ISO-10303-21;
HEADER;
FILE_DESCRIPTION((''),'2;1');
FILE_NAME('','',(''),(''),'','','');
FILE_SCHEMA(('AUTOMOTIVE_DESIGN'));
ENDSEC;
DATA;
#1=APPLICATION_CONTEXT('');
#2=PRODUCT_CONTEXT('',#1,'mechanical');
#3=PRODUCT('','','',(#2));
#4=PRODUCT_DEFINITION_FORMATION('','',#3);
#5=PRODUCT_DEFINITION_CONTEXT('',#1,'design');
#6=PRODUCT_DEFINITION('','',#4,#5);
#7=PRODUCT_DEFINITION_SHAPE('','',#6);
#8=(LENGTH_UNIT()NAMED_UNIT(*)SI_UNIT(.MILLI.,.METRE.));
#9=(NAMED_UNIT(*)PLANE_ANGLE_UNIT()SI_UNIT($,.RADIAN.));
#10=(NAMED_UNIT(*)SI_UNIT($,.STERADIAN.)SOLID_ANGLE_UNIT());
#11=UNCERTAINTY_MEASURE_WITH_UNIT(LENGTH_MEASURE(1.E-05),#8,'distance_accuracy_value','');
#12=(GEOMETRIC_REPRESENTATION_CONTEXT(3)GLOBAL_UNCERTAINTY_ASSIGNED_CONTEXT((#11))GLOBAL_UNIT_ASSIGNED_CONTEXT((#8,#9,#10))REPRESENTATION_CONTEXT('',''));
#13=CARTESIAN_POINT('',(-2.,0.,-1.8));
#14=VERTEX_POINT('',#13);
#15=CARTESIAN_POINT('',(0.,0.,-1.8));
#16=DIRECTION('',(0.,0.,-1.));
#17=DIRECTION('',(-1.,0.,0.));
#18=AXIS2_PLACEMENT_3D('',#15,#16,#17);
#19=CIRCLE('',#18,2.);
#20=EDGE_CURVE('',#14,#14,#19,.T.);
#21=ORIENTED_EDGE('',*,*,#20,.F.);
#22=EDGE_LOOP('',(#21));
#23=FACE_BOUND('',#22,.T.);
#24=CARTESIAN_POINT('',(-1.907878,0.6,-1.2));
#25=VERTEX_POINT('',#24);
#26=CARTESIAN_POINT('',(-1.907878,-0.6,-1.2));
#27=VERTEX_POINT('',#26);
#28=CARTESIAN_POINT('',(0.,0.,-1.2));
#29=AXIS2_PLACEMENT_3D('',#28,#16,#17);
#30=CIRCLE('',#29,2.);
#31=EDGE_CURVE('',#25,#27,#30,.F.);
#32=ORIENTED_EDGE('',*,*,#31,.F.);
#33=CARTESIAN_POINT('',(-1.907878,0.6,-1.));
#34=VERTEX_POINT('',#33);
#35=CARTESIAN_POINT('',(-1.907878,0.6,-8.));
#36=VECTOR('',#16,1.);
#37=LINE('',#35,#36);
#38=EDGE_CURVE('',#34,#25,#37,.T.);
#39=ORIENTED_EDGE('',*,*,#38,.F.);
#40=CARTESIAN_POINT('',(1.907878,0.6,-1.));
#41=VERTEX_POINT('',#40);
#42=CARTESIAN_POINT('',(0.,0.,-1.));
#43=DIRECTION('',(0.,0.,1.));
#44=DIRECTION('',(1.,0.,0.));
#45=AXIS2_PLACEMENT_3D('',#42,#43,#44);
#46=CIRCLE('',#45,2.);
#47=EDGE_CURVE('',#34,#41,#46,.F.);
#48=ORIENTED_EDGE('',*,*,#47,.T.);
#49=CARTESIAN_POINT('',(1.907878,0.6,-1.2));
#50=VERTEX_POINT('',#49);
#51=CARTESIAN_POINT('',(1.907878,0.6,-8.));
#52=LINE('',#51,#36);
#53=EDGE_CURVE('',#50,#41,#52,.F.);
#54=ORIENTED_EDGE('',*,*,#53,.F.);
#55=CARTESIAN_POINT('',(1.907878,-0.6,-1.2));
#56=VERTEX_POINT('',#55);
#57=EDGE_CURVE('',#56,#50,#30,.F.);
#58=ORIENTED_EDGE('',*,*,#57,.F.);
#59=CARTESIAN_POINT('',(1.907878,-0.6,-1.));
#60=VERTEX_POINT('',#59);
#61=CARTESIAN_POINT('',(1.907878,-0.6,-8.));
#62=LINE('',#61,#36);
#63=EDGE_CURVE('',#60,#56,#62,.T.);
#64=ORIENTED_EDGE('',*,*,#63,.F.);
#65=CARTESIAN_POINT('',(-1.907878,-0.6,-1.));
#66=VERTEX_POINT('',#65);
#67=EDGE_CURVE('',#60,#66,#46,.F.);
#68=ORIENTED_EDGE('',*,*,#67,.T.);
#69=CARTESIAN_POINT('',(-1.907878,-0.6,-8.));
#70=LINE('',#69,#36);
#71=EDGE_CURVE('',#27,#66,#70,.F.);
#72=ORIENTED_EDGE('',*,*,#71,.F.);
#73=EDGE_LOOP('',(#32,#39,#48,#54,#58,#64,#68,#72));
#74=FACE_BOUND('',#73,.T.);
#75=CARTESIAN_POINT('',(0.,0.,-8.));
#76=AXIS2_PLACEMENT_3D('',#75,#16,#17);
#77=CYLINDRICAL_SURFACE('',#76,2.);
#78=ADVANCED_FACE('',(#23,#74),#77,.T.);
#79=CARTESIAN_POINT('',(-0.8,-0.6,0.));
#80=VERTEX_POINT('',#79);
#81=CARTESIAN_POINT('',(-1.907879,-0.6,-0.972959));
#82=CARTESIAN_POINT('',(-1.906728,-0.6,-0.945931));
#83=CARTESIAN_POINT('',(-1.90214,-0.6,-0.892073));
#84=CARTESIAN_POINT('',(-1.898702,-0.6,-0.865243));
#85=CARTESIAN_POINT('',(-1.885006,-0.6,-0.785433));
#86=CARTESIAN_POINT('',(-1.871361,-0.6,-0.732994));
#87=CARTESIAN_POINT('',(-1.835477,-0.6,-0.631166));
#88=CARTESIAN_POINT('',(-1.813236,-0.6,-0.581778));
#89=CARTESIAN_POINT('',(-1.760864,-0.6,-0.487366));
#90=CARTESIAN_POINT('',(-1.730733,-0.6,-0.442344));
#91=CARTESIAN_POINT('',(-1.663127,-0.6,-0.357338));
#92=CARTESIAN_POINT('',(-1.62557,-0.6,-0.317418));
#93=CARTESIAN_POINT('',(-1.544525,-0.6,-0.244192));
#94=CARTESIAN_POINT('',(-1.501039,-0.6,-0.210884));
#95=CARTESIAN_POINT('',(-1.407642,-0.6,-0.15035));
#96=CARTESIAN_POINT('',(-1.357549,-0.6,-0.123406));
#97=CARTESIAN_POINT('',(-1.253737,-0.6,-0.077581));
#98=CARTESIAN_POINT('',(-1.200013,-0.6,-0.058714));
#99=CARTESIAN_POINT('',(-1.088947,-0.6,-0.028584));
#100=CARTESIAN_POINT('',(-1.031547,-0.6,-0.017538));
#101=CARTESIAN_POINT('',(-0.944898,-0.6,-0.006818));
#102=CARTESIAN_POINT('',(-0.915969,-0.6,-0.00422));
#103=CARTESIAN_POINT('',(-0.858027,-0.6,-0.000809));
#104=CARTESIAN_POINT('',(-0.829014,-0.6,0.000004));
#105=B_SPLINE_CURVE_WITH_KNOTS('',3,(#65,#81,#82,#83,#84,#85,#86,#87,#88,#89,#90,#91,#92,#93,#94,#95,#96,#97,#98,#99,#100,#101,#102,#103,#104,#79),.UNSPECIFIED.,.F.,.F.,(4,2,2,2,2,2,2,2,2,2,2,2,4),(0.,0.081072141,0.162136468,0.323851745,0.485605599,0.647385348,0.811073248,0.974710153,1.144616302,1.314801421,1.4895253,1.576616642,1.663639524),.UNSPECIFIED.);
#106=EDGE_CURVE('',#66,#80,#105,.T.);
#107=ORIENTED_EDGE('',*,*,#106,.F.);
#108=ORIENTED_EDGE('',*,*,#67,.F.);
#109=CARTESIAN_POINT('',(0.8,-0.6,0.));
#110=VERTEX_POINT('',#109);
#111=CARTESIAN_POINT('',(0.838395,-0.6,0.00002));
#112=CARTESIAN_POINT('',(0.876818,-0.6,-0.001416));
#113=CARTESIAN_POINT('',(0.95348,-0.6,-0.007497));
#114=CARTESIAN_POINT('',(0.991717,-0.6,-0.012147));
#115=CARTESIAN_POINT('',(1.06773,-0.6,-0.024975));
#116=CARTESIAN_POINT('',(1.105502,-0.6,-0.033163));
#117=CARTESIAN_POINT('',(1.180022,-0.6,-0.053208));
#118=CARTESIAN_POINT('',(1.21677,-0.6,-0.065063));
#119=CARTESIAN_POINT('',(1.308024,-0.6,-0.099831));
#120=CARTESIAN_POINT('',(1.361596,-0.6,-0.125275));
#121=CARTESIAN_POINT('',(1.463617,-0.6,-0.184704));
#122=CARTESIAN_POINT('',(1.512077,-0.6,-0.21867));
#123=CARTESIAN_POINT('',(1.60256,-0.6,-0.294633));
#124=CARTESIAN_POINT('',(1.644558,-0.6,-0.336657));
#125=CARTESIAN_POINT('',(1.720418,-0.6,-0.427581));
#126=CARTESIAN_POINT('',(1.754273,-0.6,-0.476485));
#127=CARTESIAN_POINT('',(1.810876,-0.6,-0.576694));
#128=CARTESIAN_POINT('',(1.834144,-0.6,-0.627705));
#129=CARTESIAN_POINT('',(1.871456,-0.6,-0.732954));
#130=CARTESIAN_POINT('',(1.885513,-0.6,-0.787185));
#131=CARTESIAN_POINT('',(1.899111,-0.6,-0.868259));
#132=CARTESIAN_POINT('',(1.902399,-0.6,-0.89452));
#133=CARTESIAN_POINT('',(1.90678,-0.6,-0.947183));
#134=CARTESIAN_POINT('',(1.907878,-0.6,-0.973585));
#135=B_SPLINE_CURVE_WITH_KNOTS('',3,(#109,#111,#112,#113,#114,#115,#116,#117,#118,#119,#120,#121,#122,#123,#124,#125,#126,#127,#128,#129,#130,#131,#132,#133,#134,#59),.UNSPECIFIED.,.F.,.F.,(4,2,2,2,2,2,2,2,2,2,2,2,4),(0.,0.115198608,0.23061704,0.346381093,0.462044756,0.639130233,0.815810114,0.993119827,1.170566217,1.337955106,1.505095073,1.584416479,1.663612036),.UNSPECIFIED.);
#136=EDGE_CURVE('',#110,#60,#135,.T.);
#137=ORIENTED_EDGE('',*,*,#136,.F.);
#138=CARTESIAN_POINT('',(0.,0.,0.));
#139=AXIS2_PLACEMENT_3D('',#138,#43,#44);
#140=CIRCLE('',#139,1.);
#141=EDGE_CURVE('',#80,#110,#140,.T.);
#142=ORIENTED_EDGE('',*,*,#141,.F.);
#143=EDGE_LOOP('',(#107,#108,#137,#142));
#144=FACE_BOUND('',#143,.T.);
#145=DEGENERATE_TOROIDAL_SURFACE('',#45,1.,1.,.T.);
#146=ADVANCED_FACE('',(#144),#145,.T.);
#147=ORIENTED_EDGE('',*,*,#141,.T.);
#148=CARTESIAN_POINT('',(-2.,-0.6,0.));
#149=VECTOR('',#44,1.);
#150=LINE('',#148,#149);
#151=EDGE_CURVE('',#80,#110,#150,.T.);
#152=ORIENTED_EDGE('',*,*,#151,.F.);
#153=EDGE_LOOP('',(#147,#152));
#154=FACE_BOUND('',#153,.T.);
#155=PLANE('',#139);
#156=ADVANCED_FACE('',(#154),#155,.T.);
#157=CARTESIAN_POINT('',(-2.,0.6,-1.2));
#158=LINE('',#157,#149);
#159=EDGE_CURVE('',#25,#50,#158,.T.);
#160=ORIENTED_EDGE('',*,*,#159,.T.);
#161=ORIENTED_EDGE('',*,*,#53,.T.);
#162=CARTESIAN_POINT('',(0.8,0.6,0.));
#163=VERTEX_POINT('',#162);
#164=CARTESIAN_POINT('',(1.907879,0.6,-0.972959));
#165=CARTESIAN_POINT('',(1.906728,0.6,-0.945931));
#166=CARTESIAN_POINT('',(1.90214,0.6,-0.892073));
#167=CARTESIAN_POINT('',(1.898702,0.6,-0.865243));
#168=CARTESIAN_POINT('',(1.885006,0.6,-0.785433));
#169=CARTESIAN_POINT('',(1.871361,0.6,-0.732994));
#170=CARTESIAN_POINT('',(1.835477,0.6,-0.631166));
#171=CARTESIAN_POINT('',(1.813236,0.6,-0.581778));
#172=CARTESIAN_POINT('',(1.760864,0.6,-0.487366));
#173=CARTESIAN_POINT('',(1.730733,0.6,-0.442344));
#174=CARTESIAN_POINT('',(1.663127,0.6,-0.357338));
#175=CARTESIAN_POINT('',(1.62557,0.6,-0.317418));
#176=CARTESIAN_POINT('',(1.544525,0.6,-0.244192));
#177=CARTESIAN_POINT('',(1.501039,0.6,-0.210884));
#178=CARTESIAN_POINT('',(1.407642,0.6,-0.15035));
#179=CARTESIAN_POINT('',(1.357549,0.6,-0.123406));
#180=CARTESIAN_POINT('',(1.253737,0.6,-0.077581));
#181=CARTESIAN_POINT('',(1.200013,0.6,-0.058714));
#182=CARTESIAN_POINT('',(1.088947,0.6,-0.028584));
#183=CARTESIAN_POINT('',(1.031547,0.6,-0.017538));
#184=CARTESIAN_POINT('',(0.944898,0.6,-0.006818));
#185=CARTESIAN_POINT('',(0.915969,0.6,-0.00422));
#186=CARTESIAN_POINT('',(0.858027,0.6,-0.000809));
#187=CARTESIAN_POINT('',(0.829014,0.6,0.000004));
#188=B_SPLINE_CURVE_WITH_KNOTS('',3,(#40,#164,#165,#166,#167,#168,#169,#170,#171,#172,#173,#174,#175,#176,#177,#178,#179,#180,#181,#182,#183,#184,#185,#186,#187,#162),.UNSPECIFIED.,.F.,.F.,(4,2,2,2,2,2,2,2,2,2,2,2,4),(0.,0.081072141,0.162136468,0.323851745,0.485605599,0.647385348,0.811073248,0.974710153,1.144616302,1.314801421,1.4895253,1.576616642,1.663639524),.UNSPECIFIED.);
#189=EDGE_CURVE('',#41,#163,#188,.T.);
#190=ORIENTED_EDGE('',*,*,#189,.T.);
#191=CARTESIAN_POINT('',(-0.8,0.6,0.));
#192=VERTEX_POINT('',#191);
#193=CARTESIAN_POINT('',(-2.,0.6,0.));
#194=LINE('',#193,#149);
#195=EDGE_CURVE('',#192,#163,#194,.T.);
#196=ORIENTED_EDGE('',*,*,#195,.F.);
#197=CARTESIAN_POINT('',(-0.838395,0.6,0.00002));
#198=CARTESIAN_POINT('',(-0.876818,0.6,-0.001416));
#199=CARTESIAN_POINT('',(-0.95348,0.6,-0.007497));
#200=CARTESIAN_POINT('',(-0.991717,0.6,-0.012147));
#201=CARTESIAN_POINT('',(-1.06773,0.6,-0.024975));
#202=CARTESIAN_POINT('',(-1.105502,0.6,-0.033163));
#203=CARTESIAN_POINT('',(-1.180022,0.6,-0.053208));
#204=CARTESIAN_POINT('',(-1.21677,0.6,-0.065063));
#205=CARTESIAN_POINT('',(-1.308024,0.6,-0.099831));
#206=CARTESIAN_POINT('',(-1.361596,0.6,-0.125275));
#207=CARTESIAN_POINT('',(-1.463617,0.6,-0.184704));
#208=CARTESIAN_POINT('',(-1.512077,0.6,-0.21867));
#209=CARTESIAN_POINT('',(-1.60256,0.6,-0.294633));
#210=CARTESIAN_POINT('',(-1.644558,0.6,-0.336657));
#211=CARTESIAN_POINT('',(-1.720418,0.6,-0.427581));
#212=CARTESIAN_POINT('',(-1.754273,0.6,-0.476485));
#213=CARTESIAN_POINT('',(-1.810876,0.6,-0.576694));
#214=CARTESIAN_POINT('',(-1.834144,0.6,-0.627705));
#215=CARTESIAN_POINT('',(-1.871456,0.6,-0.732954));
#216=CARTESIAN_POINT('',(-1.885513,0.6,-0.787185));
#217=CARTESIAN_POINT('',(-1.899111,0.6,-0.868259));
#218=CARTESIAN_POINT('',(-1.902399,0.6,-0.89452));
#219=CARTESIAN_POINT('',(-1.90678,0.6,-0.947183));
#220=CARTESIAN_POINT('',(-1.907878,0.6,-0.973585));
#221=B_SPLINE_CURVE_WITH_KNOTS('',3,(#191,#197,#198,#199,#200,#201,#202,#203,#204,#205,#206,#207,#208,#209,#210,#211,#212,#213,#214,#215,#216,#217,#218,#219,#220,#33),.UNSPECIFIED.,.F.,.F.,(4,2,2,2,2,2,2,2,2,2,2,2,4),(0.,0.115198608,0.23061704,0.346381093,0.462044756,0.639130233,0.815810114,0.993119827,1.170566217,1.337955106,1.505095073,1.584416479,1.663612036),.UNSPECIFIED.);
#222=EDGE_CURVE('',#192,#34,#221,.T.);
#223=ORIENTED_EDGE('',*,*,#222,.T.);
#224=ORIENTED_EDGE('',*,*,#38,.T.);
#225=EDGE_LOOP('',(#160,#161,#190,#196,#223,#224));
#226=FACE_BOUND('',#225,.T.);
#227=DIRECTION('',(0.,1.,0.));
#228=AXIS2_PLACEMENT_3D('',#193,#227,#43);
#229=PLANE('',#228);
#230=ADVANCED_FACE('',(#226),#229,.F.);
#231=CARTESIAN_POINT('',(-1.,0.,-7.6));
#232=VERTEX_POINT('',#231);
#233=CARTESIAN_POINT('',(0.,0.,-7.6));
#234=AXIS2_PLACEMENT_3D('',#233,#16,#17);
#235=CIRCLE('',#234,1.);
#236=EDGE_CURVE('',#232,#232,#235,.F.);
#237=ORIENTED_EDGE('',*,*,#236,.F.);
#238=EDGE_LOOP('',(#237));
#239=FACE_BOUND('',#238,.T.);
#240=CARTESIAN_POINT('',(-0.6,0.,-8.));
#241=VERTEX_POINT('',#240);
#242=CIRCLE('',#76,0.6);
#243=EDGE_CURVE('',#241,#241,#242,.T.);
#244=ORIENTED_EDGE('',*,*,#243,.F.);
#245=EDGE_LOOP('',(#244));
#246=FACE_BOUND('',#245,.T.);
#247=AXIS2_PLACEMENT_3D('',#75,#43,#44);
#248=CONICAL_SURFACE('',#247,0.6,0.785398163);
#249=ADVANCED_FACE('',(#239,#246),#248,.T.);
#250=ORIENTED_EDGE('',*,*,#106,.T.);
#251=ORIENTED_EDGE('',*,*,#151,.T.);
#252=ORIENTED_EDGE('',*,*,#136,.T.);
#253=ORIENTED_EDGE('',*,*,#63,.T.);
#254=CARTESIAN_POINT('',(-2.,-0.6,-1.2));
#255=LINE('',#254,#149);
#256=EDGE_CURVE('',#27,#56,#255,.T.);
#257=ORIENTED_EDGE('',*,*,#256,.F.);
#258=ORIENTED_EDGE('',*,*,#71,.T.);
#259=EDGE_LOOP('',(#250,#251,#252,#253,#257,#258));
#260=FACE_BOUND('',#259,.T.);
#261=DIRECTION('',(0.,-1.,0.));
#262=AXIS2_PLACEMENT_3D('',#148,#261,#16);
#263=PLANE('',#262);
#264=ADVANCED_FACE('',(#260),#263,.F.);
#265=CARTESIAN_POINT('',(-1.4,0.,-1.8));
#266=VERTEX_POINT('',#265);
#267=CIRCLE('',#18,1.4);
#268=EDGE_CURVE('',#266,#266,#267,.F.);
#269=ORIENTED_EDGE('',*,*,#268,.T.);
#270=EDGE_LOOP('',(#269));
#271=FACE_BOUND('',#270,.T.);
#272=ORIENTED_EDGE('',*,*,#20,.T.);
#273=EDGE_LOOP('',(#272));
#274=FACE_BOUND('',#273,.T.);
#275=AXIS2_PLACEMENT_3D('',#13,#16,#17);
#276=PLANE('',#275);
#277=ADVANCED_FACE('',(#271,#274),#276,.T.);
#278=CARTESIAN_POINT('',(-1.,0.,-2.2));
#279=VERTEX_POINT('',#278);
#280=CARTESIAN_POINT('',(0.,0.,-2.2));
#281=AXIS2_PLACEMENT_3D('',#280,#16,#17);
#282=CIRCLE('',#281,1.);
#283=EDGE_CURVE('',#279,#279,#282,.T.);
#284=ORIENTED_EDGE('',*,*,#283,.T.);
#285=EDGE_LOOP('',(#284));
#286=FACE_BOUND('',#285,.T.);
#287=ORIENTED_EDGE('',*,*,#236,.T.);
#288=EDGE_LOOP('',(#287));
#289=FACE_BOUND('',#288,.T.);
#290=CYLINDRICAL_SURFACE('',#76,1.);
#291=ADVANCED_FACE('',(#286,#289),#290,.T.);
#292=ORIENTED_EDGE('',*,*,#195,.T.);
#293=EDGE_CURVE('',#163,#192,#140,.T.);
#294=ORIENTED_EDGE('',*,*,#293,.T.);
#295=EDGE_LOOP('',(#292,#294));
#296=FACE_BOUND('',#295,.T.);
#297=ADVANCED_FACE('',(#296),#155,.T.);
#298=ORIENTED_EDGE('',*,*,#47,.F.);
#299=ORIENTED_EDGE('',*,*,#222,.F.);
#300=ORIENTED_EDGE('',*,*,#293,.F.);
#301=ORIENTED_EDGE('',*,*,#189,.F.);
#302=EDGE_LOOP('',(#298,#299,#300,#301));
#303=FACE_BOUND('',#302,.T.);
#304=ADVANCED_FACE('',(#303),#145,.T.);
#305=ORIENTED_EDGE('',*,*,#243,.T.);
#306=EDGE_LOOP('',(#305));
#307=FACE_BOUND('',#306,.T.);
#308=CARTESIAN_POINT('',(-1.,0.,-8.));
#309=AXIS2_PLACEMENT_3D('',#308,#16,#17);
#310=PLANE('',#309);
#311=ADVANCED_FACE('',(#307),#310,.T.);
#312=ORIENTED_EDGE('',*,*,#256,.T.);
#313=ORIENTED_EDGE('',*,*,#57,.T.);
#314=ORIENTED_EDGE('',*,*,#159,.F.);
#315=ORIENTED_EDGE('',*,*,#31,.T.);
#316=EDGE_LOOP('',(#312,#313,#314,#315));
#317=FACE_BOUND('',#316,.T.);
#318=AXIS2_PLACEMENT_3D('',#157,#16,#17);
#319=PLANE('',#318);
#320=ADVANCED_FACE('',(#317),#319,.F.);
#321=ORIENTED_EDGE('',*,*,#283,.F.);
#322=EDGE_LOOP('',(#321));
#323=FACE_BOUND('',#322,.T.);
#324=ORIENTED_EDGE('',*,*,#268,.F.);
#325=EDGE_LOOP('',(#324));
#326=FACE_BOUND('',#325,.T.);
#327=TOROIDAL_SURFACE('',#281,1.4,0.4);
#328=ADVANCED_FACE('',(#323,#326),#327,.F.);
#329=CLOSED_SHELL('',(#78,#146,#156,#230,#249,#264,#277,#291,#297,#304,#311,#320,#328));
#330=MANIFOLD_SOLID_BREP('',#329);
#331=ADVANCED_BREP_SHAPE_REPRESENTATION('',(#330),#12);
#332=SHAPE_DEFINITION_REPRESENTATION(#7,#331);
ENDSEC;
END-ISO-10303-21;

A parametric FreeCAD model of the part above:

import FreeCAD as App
import Part
import Sketcher
from FreeCAD import Vector
Q = App.Units.Quantity


def edges_at(feature, points):
    """Names of the edges that pass closest to the given points."""
    edges = feature.Shape.Edges
    near = lambda p: min(range(len(edges)), key=lambda i: edges[i].distToShape(Part.Vertex(*p))[0])
    return sorted({f"Edge{near(p) + 1}" for p in points})

doc = App.newDocument("Part")
body = doc.addObject("PartDesign::Body", "Body")

# Sketch on XZ plane
sketch1 = body.newObject("Sketcher::SketchObject", "Sketch")
sketch1.AttachmentSupport = (doc.getObject("XZ_Plane"), [""])
sketch1.MapMode = "FlatFace"
sketch1.addGeometry(Part.LineSegment(Vector(-2, 0, 0), Vector(0, 0, 0)), False)
sketch1.addGeometry(Part.LineSegment(Vector(0, 0, 0), Vector(0, -8, 0)), False)
sketch1.addGeometry(Part.LineSegment(Vector(0, -8, 0), Vector(-1, -8, 0)), False)
sketch1.addGeometry(Part.LineSegment(Vector(-1, -8, 0), Vector(-1, -1.8, 0)), False)
sketch1.addGeometry(Part.LineSegment(Vector(-1, -1.8, 0), Vector(-2, -1.8, 0)), False)
sketch1.addGeometry(Part.LineSegment(Vector(-2, -1.8, 0), Vector(-2, 0, 0)), False)
sketch1.addConstraint(Sketcher.Constraint("Coincident", 0, 2, 1, 1))
sketch1.addConstraint(Sketcher.Constraint("Coincident", 1, 2, 2, 1))
sketch1.addConstraint(Sketcher.Constraint("Coincident", 2, 2, 3, 1))
sketch1.addConstraint(Sketcher.Constraint("Coincident", 3, 2, 4, 1))
sketch1.addConstraint(Sketcher.Constraint("Coincident", 4, 2, 5, 1))
sketch1.addConstraint(Sketcher.Constraint("Coincident", 5, 2, 0, 1))
sketch1.addConstraint(Sketcher.Constraint("Horizontal", 0))
sketch1.addConstraint(Sketcher.Constraint("Vertical", 1))
sketch1.addConstraint(Sketcher.Constraint("Horizontal", 2))
sketch1.addConstraint(Sketcher.Constraint("Vertical", 3))
sketch1.addConstraint(Sketcher.Constraint("Horizontal", 4))
sketch1.addConstraint(Sketcher.Constraint("Vertical", 5))
sketch1.addConstraint(Sketcher.Constraint("Coincident", 0, 2, -1, 1))
sketch1.addConstraint(Sketcher.Constraint("Equal", 2, 4))
sketch1.addConstraint(Sketcher.Constraint("DistanceX", 0, 1, 0, 2, Q("2 mm")))
sketch1.addConstraint(Sketcher.Constraint("DistanceY", 1, 2, 1, 1, Q("8 mm")))
sketch1.addConstraint(Sketcher.Constraint("DistanceY", 3, 1, 3, 2, Q("6.2 mm")))
revolution = body.newObject("PartDesign::Revolution", "Revolution")
revolution.Profile = sketch1
revolution.ReferenceAxis = (sketch1, ["V_Axis"])
revolution.Angle = 360

# Sketch on YZ plane
sketch2 = body.newObject("Sketcher::SketchObject", "Sketch001")
sketch2.AttachmentSupport = (doc.getObject("YZ_Plane"), [""])
sketch2.MapMode = "FlatFace"
sketch2.addGeometry(Part.LineSegment(Vector(0.6, 0, 0), Vector(-0.6, 0, 0)), False)
sketch2.addGeometry(Part.LineSegment(Vector(-0.6, 0, 0), Vector(-0.6, -1.2, 0)), False)
sketch2.addGeometry(Part.LineSegment(Vector(-0.6, -1.2, 0), Vector(0.6, -1.2, 0)), False)
sketch2.addGeometry(Part.LineSegment(Vector(0.6, -1.2, 0), Vector(0.6, 0, 0)), False)
sketch2.addConstraint(Sketcher.Constraint("Coincident", 0, 2, 1, 1))
sketch2.addConstraint(Sketcher.Constraint("Coincident", 1, 2, 2, 1))
sketch2.addConstraint(Sketcher.Constraint("Coincident", 2, 2, 3, 1))
sketch2.addConstraint(Sketcher.Constraint("Coincident", 3, 2, 0, 1))
sketch2.addConstraint(Sketcher.Constraint("Horizontal", 0))
sketch2.addConstraint(Sketcher.Constraint("Vertical", 1))
sketch2.addConstraint(Sketcher.Constraint("Horizontal", 2))
sketch2.addConstraint(Sketcher.Constraint("Vertical", 3))
sketch2.addConstraint(Sketcher.Constraint("Symmetric", 0, 2, 3, 2, -1, 1))
sketch2.addConstraint(Sketcher.Constraint("Equal", 2, 1))
sketch2.addConstraint(Sketcher.Constraint("DistanceX", 0, 2, 0, 1, Q("1.2 mm")))
pocket1 = body.newObject("PartDesign::Pocket", "Pocket")
pocket1.Profile = sketch2
pocket1.Type = "ThroughAll"
pocket1.Midplane = True
doc.recompute()

chamfer = body.newObject("PartDesign::Chamfer", "Chamfer")
chamfer.Base = (pocket1, edges_at(pocket1, [(1, 0, -8)]))
chamfer.Size = 0.4
doc.recompute()

fillet = body.newObject("PartDesign::Fillet", "Fillet")
fillet.Base = (chamfer, edges_at(chamfer, [(0, 2, 0), (0, -2, 0)]))
fillet.Radius = 1
doc.recompute()

fillet2 = body.newObject("PartDesign::Fillet", "Fillet001")
fillet2.Base = (fillet, edges_at(fillet, [(1, 0, -1.8)]))
fillet2.Radius = 0.4

doc.recompute()
